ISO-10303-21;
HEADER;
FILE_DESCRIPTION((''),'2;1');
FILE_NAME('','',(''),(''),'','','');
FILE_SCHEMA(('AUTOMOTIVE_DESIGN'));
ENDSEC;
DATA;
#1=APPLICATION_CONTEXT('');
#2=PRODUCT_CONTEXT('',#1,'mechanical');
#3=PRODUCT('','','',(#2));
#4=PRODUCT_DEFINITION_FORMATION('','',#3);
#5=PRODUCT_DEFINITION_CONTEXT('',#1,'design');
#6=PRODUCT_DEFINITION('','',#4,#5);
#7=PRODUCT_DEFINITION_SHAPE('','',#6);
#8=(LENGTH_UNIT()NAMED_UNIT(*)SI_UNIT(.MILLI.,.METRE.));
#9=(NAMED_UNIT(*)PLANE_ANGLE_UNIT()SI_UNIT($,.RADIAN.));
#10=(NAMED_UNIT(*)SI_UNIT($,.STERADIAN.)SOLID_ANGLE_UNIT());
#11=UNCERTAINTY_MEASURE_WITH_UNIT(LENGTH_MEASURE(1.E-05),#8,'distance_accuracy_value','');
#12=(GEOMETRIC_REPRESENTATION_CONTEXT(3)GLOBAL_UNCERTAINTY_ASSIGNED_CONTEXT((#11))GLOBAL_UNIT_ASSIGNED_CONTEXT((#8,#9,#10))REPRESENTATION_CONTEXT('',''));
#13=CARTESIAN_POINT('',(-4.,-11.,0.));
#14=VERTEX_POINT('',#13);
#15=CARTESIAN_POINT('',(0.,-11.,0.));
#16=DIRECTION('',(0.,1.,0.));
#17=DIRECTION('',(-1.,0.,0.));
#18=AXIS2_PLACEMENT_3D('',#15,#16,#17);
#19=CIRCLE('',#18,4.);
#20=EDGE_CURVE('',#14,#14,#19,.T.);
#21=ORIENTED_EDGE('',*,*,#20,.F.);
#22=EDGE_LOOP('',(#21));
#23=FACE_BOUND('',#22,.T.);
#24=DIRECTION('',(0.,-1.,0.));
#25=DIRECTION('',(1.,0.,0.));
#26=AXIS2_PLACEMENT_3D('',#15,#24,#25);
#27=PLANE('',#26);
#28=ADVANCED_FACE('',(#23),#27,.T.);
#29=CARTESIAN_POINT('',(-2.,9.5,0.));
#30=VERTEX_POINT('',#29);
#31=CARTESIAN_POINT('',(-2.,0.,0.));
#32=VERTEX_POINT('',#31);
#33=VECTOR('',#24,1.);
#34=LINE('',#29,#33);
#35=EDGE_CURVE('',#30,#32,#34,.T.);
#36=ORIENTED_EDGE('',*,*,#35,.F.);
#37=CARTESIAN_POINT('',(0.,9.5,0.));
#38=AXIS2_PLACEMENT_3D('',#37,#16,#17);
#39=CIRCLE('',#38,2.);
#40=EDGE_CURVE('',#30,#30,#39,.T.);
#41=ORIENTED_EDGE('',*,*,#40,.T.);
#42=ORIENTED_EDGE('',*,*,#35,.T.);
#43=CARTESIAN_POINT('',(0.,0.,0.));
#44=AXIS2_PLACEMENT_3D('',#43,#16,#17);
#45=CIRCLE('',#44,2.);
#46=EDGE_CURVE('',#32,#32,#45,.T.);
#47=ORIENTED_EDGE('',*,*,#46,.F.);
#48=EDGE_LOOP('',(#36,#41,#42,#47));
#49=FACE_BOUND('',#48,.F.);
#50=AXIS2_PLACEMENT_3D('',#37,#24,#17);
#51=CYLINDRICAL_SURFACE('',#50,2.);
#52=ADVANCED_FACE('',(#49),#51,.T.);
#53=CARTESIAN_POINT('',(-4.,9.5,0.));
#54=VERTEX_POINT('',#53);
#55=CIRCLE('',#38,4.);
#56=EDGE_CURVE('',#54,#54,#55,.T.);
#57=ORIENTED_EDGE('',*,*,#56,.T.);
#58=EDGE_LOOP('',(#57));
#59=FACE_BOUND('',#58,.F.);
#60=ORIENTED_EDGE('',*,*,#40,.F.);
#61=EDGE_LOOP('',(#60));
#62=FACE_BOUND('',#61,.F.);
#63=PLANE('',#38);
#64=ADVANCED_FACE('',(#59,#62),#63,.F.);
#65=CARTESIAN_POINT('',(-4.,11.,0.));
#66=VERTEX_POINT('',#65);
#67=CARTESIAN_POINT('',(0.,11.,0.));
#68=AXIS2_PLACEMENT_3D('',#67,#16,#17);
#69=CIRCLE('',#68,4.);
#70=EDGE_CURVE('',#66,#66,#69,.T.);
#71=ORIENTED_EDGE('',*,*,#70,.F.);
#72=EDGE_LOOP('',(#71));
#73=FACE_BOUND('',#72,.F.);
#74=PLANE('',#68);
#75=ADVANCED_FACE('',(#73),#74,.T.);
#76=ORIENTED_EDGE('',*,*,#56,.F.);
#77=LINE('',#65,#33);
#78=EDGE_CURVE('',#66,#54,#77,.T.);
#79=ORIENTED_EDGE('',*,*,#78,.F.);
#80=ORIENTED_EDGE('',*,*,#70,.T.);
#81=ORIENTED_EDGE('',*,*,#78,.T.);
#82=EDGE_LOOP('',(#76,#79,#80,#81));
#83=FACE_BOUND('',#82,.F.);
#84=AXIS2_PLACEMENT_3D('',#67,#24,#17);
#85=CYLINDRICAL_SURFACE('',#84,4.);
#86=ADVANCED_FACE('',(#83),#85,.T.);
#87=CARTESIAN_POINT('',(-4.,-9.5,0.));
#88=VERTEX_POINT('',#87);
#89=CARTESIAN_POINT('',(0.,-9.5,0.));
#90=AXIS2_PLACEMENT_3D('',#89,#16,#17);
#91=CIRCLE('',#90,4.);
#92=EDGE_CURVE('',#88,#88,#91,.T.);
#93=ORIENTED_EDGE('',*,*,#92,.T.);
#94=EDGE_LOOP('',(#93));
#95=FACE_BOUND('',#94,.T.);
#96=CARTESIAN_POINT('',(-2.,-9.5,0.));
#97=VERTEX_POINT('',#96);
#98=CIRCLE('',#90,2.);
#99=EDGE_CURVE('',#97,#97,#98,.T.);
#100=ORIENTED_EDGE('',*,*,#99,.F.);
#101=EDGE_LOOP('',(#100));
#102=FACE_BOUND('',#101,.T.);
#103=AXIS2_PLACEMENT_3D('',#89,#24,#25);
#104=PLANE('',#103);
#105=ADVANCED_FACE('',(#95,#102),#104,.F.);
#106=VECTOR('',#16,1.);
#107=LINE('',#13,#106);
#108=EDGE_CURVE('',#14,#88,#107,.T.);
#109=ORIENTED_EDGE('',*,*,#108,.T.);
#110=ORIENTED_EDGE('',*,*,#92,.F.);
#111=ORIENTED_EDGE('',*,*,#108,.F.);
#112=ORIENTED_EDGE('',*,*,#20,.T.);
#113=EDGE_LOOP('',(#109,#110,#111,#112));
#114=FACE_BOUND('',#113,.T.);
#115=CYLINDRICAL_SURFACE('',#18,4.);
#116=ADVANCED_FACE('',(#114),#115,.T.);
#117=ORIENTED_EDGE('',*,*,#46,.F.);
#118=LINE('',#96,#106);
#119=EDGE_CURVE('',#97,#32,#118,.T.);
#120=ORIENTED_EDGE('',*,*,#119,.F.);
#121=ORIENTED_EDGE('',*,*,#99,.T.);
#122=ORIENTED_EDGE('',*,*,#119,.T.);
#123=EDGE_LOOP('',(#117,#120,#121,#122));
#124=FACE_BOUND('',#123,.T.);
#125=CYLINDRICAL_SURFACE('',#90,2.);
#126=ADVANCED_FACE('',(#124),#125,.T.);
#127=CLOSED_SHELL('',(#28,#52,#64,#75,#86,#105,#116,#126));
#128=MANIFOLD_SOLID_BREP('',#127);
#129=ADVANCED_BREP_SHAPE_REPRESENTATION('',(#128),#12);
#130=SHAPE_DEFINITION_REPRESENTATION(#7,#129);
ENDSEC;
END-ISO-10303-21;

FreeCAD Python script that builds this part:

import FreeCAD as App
import Part
import Sketcher

V = App.Vector
Q = App.Units.Quantity

doc = App.newDocument("Part")
params = doc.addObject("Spreadsheet::Sheet", "Params")
for row, (alias, value) in enumerate([
    ("sketch1_width", "4 mm"),
    ("sketch1_height", "11 mm"),
    ("sketch1_height2", "1.5 mm"),
    ("revolution_angle", "360 deg"),
], start=1):
    params.set(f"A{row}", alias)
    params.set(f"B{row}", "=" + value)
    params.setAlias(f"B{row}", alias)

body = doc.addObject("PartDesign::Body", "Body")

sketch1 = doc.addObject("Sketcher::SketchObject", "Sketch")
body.addObject(sketch1)
sketch1.AttachmentSupport = (doc.XY_Plane, [""])
sketch1.MapMode = "FlatFace"
sketch1.addGeometry(Part.LineSegment(V(0, 0, 0), V(0, 11, 0)), False)
sketch1.addGeometry(Part.LineSegment(V(0, 11, 0), V(-4, 11, 0)), False)
sketch1.addGeometry(Part.LineSegment(V(-4, 11, 0), V(-4, 9.5, 0)), False)
sketch1.addGeometry(Part.LineSegment(V(-4, 9.5, 0), V(-2, 9.5, 0)), False)
sketch1.addGeometry(Part.LineSegment(V(-2, 9.5, 0), V(-2, 0, 0)), False)
sketch1.addGeometry(Part.LineSegment(V(-2, 0, 0), V(0, 0, 0)), False)
sketch1.addConstraint(Sketcher.Constraint("Coincident", 0, 2, 1, 1))
sketch1.addConstraint(Sketcher.Constraint("Coincident", 1, 2, 2, 1))
sketch1.addConstraint(Sketcher.Constraint("Coincident", 2, 2, 3, 1))
sketch1.addConstraint(Sketcher.Constraint("Coincident", 3, 2, 4, 1))
sketch1.addConstraint(Sketcher.Constraint("Coincident", 4, 2, 5, 1))
sketch1.addConstraint(Sketcher.Constraint("Coincident", 5, 2, 0, 1))
sketch1.addConstraint(Sketcher.Constraint("Vertical", 0))
sketch1.addConstraint(Sketcher.Constraint("Horizontal", 1))
sketch1.addConstraint(Sketcher.Constraint("Vertical", 2))
sketch1.addConstraint(Sketcher.Constraint("Horizontal", 3))
sketch1.addConstraint(Sketcher.Constraint("Vertical", 4))
sketch1.addConstraint(Sketcher.Constraint("Horizontal", 5))
sketch1.addConstraint(Sketcher.Constraint("Coincident", 5, 2, -1, 1))
sketch1.addConstraint(Sketcher.Constraint("Equal", 3, 5))
sketch1.addConstraint(Sketcher.Constraint("DistanceX", 1, 2, 1, 1, Q("4 mm")))
sketch1.addConstraint(Sketcher.Constraint("DistanceY", 0, 1, 0, 2, Q("11 mm")))
sketch1.addConstraint(Sketcher.Constraint("DistanceY", 2, 2, 2, 1, Q("1.5 mm")))
sketch1.setExpression("Constraints[14]", "Params.sketch1_width")
sketch1.setExpression("Constraints[15]", "Params.sketch1_height")
sketch1.setExpression("Constraints[16]", "Params.sketch1_height2")
revolution = doc.addObject("PartDesign::Revolution", "Revolution")
body.addObject(revolution)
revolution.Profile = sketch1
revolution.ReferenceAxis = (sketch1, ["V_Axis"])
revolution.setExpression("Angle", "Params.revolution_angle")
doc.recompute()

mirrored = doc.addObject("PartDesign::Mirrored", "Mirrored")
body.addObject(mirrored)
mirrored.Originals = [revolution]
mirrored.MirrorPlane = (doc.XZ_Plane, [""])
body.Tip = mirrored

doc.recompute()
